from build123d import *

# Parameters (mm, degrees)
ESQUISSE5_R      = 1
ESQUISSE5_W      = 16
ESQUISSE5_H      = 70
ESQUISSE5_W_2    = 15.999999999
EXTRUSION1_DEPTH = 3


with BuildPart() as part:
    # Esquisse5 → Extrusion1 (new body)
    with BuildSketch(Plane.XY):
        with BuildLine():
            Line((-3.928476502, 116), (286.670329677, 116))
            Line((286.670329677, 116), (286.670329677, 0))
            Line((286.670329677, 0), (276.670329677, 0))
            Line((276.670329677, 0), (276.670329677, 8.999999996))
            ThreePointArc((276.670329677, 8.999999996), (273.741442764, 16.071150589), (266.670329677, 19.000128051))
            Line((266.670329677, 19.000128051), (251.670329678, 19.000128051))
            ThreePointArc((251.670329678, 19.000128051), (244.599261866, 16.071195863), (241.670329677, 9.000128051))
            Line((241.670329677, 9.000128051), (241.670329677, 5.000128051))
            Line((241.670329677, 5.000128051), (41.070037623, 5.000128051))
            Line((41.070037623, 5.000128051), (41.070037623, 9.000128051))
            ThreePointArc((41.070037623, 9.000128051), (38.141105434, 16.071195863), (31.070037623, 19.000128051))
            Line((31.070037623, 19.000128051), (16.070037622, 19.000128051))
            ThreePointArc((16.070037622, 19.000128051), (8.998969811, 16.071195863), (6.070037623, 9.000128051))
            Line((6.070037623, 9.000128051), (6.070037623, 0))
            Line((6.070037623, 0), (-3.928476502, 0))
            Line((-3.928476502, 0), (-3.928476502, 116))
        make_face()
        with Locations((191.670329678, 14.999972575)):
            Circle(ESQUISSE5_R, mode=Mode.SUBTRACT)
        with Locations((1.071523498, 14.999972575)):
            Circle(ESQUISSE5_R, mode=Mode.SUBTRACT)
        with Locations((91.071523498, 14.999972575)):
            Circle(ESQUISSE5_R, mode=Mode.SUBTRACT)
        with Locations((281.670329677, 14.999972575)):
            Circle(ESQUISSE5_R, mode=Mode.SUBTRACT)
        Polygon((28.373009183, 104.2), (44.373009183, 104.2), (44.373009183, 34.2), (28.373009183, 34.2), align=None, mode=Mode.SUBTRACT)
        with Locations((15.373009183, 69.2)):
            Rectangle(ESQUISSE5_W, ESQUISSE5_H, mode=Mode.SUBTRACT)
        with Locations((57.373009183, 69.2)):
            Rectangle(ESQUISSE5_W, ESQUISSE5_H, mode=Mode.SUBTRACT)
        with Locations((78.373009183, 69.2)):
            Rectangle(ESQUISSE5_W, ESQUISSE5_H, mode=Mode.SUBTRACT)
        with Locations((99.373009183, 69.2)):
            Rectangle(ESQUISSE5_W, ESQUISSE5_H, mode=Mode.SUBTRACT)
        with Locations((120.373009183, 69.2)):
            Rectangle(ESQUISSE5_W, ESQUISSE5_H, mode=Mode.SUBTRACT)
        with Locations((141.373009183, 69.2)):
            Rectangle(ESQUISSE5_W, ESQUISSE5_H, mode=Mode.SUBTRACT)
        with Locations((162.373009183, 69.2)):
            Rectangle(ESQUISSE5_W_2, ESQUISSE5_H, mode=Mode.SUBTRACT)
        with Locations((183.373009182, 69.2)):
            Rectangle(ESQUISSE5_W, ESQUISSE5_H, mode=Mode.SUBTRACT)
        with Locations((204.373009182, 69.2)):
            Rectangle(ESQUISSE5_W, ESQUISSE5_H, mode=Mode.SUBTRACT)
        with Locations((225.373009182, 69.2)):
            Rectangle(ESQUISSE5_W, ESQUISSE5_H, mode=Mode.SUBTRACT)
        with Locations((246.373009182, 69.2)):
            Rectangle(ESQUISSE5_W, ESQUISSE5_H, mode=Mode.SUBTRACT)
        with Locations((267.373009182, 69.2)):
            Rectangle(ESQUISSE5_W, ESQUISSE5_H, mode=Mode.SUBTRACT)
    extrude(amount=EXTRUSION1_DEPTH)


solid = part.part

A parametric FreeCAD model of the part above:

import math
import FreeCAD as App
import Part
import Sketcher

doc = App.newDocument("Part")
params = doc.addObject("Spreadsheet::Sheet", "Params")
for row, (alias, value) in enumerate([
    ("sketch1_diameter", "2 mm"),
    ("sketch1_radius", "10 mm"),
    ("sketch1_width", "15 mm"),
    ("sketch1_width2", "10 mm"),
    ("sketch1_width3", "16 mm"),
    ("pad1_length", "3 mm"),
], start=1):
    params.set(f"A{row}", alias)
    params.set(f"B{row}", "=" + value)
    params.setAlias(f"B{row}", alias)

body = doc.addObject("PartDesign::Body", "Body")

# Sketch on XY plane
sketch1 = doc.addObject("Sketcher::SketchObject", "Sketch")
body.addObject(sketch1)
sketch1.AttachmentSupport = (doc.XY_Plane, [""])
sketch1.MapMode = "FlatFace"
sketch1.addGeometry([
    Part.LineSegment(App.Vector(286.7, 116, 0), App.Vector(-3.9, 116, 0)),  # 0
    Part.LineSegment(App.Vector(-3.9, 116, 0), App.Vector(-3.9, 0, 0)),  # 1
    Part.LineSegment(App.Vector(-3.9, 0, 0), App.Vector(6.1, 0, 0)),  # 2
    Part.LineSegment(App.Vector(6.1, 0, 0), App.Vector(6.1, 9, 0)),  # 3
    Part.ArcOfCircle(Part.Circle(App.Vector(16.1, 9, 0), App.Vector(0, 0, 1), 10), math.radians(90), math.radians(180)),  # 4
    Part.LineSegment(App.Vector(16.1, 19, 0), App.Vector(31.1, 19, 0)),  # 5
    Part.ArcOfCircle(Part.Circle(App.Vector(31.1, 9, 0), App.Vector(0, 0, 1), 10), math.radians(0), math.radians(90)),  # 6
    Part.LineSegment(App.Vector(41.1, 9, 0), App.Vector(41.1, 5, 0)),  # 7
    Part.LineSegment(App.Vector(41.1, 5, 0), App.Vector(241.7, 5, 0)),  # 8
    Part.LineSegment(App.Vector(241.7, 5, 0), App.Vector(241.7, 9, 0)),  # 9
    Part.ArcOfCircle(Part.Circle(App.Vector(251.7, 9, 0), App.Vector(0, 0, 1), 10), math.radians(90), math.radians(180)),  # 10
    Part.LineSegment(App.Vector(251.7, 19, 0), App.Vector(266.7, 19, 0)),  # 11
    Part.ArcOfCircle(Part.Circle(App.Vector(266.7, 9, 0), App.Vector(0, 0, 1), 10), math.radians(0), math.radians(90)),  # 12
    Part.LineSegment(App.Vector(276.7, 9, 0), App.Vector(276.7, 0, 0)),  # 13
    Part.LineSegment(App.Vector(276.7, 0, 0), App.Vector(286.7, 0, 0)),  # 14
    Part.LineSegment(App.Vector(286.7, 0, 0), App.Vector(286.7, 116, 0)),  # 15
    Part.Circle(App.Vector(281.7, 15, 0), App.Vector(0, 0, 1), 1),  # 16
    Part.Circle(App.Vector(191.7, 15, 0), App.Vector(0, 0, 1), 1),  # 17
    Part.Circle(App.Vector(91.1, 15, 0), App.Vector(0, 0, 1), 1),  # 18
    Part.Circle(App.Vector(1.1, 15, 0), App.Vector(0, 0, 1), 1),  # 19
    Part.LineSegment(App.Vector(259.4, 34.2, 0), App.Vector(259.4, 104.2, 0)),  # 20
    Part.LineSegment(App.Vector(259.4, 104.2, 0), App.Vector(275.4, 104.2, 0)),  # 21
    Part.LineSegment(App.Vector(275.4, 104.2, 0), App.Vector(275.4, 34.2, 0)),  # 22
    Part.LineSegment(App.Vector(275.4, 34.2, 0), App.Vector(259.4, 34.2, 0)),  # 23
    Part.LineSegment(App.Vector(238.4, 34.2, 0), App.Vector(238.4, 104.2, 0)),  # 24
    Part.LineSegment(App.Vector(238.4, 104.2, 0), App.Vector(254.4, 104.2, 0)),  # 25
    Part.LineSegment(App.Vector(254.4, 104.2, 0), App.Vector(254.4, 34.2, 0)),  # 26
    Part.LineSegment(App.Vector(254.4, 34.2, 0), App.Vector(238.4, 34.2, 0)),  # 27
    Part.LineSegment(App.Vector(217.4, 34.2, 0), App.Vector(217.4, 104.2, 0)),  # 28
    Part.LineSegment(App.Vector(217.4, 104.2, 0), App.Vector(233.4, 104.2, 0)),  # 29
    Part.LineSegment(App.Vector(233.4, 104.2, 0), App.Vector(233.4, 34.2, 0)),  # 30
    Part.LineSegment(App.Vector(233.4, 34.2, 0), App.Vector(217.4, 34.2, 0)),  # 31
    Part.LineSegment(App.Vector(196.4, 34.2, 0), App.Vector(196.4, 104.2, 0)),  # 32
    Part.LineSegment(App.Vector(196.4, 104.2, 0), App.Vector(212.4, 104.2, 0)),  # 33
    Part.LineSegment(App.Vector(212.4, 104.2, 0), App.Vector(212.4, 34.2, 0)),  # 34
    Part.LineSegment(App.Vector(212.4, 34.2, 0), App.Vector(196.4, 34.2, 0)),  # 35
    Part.LineSegment(App.Vector(175.4, 34.2, 0), App.Vector(175.4, 104.2, 0)),  # 36
    Part.LineSegment(App.Vector(175.4, 104.2, 0), App.Vector(191.4, 104.2, 0)),  # 37
    Part.LineSegment(App.Vector(191.4, 104.2, 0), App.Vector(191.4, 34.2, 0)),  # 38
    Part.LineSegment(App.Vector(191.4, 34.2, 0), App.Vector(175.4, 34.2, 0)),  # 39
    Part.LineSegment(App.Vector(154.4, 34.2, 0), App.Vector(154.4, 104.2, 0)),  # 40
    Part.LineSegment(App.Vector(154.4, 104.2, 0), App.Vector(170.4, 104.2, 0)),  # 41
    Part.LineSegment(App.Vector(170.4, 104.2, 0), App.Vector(170.4, 34.2, 0)),  # 42
    Part.LineSegment(App.Vector(170.4, 34.2, 0), App.Vector(154.4, 34.2, 0)),  # 43
    Part.LineSegment(App.Vector(133.4, 34.2, 0), App.Vector(133.4, 104.2, 0)),  # 44
    Part.LineSegment(App.Vector(133.4, 104.2, 0), App.Vector(149.4, 104.2, 0)),  # 45
    Part.LineSegment(App.Vector(149.4, 104.2, 0), App.Vector(149.4, 34.2, 0)),  # 46
    Part.LineSegment(App.Vector(149.4, 34.2, 0), App.Vector(133.4, 34.2, 0)),  # 47
    Part.LineSegment(App.Vector(112.4, 34.2, 0), App.Vector(112.4, 104.2, 0)),  # 48
    Part.LineSegment(App.Vector(112.4, 104.2, 0), App.Vector(128.4, 104.2, 0)),  # 49
    Part.LineSegment(App.Vector(128.4, 104.2, 0), App.Vector(128.4, 34.2, 0)),  # 50
    Part.LineSegment(App.Vector(128.4, 34.2, 0), App.Vector(112.4, 34.2, 0)),  # 51
    Part.LineSegment(App.Vector(91.4, 34.2, 0), App.Vector(91.4, 104.2, 0)),  # 52
    Part.LineSegment(App.Vector(91.4, 104.2, 0), App.Vector(107.4, 104.2, 0)),  # 53
    Part.LineSegment(App.Vector(107.4, 104.2, 0), App.Vector(107.4, 34.2, 0)),  # 54
    Part.LineSegment(App.Vector(107.4, 34.2, 0), App.Vector(91.4, 34.2, 0)),  # 55
    Part.LineSegment(App.Vector(70.4, 34.2, 0), App.Vector(70.4, 104.2, 0)),  # 56
    Part.LineSegment(App.Vector(70.4, 104.2, 0), App.Vector(86.4, 104.2, 0)),  # 57
    Part.LineSegment(App.Vector(86.4, 104.2, 0), App.Vector(86.4, 34.2, 0)),  # 58
    Part.LineSegment(App.Vector(86.4, 34.2, 0), App.Vector(70.4, 34.2, 0)),  # 59
    Part.LineSegment(App.Vector(49.4, 34.2, 0), App.Vector(49.4, 104.2, 0)),  # 60
    Part.LineSegment(App.Vector(49.4, 104.2, 0), App.Vector(65.4, 104.2, 0)),  # 61
    Part.LineSegment(App.Vector(65.4, 104.2, 0), App.Vector(65.4, 34.2, 0)),  # 62
    Part.LineSegment(App.Vector(65.4, 34.2, 0), App.Vector(49.4, 34.2, 0)),  # 63
    Part.LineSegment(App.Vector(28.4, 104.2, 0), App.Vector(44.4, 104.2, 0)),  # 64
    Part.LineSegment(App.Vector(44.4, 104.2, 0), App.Vector(44.4, 34.2, 0)),  # 65
    Part.LineSegment(App.Vector(44.4, 34.2, 0), App.Vector(28.4, 34.2, 0)),  # 66
    Part.LineSegment(App.Vector(28.4, 34.2, 0), App.Vector(28.4, 104.2, 0)),  # 67
    Part.LineSegment(App.Vector(7.4, 34.2, 0), App.Vector(7.4, 104.2, 0)),  # 68
    Part.LineSegment(App.Vector(7.4, 104.2, 0), App.Vector(23.4, 104.2, 0)),  # 69
    Part.LineSegment(App.Vector(23.4, 104.2, 0), App.Vector(23.4, 34.2, 0)),  # 70
    Part.LineSegment(App.Vector(23.4, 34.2, 0), App.Vector(7.4, 34.2, 0)),  # 71
], False)
sketch1.addConstraint([
    Sketcher.Constraint("Coincident", 0, 2, 1, 1),
    Sketcher.Constraint("Coincident", 1, 2, 2, 1),
    Sketcher.Constraint("Coincident", 2, 2, 3, 1),
    Sketcher.Constraint("Tangent", 3, 2, 4, 2),
    Sketcher.Constraint("Tangent", 4, 1, 5, 1),
    Sketcher.Constraint("Tangent", 5, 2, 6, 2),
    Sketcher.Constraint("Tangent", 6, 1, 7, 1),
    Sketcher.Constraint("Coincident", 7, 2, 8, 1),
    Sketcher.Constraint("Coincident", 8, 2, 9, 1),
    Sketcher.Constraint("Tangent", 9, 2, 10, 2),
    Sketcher.Constraint("Tangent", 10, 1, 11, 1),
    Sketcher.Constraint("Tangent", 11, 2, 12, 2),
    Sketcher.Constraint("Coincident", 12, 1, 13, 1),
    Sketcher.Constraint("Coincident", 13, 2, 14, 1),
    Sketcher.Constraint("Coincident", 14, 2, 15, 1),
    Sketcher.Constraint("Coincident", 15, 2, 0, 1),
    Sketcher.Constraint("Coincident", 20, 2, 21, 1),
    Sketcher.Constraint("Coincident", 21, 2, 22, 1),
    Sketcher.Constraint("Coincident", 22, 2, 23, 1),
    Sketcher.Constraint("Coincident", 23, 2, 20, 1),
    Sketcher.Constraint("Coincident", 24, 2, 25, 1),
    Sketcher.Constraint("Coincident", 25, 2, 26, 1),
    Sketcher.Constraint("Coincident", 26, 2, 27, 1),
    Sketcher.Constraint("Coincident", 27, 2, 24, 1),
    Sketcher.Constraint("Coincident", 28, 2, 29, 1),
    Sketcher.Constraint("Coincident", 29, 2, 30, 1),
    Sketcher.Constraint("Coincident", 30, 2, 31, 1),
    Sketcher.Constraint("Coincident", 31, 2, 28, 1),
    Sketcher.Constraint("Coincident", 32, 2, 33, 1),
    Sketcher.Constraint("Coincident", 33, 2, 34, 1),
    Sketcher.Constraint("Coincident", 34, 2, 35, 1),
    Sketcher.Constraint("Coincident", 35, 2, 32, 1),
    Sketcher.Constraint("Coincident", 36, 2, 37, 1),
    Sketcher.Constraint("Coincident", 37, 2, 38, 1),
    Sketcher.Constraint("Coincident", 38, 2, 39, 1),
    Sketcher.Constraint("Coincident", 39, 2, 36, 1),
    Sketcher.Constraint("Coincident", 40, 2, 41, 1),
    Sketcher.Constraint("Coincident", 41, 2, 42, 1),
    Sketcher.Constraint("Coincident", 42, 2, 43, 1),
    Sketcher.Constraint("Coincident", 43, 2, 40, 1),
    Sketcher.Constraint("Coincident", 44, 2, 45, 1),
    Sketcher.Constraint("Coincident", 45, 2, 46, 1),
    Sketcher.Constraint("Coincident", 46, 2, 47, 1),
    Sketcher.Constraint("Coincident", 47, 2, 44, 1),
    Sketcher.Constraint("Coincident", 48, 2, 49, 1),
    Sketcher.Constraint("Coincident", 49, 2, 50, 1),
    Sketcher.Constraint("Coincident", 50, 2, 51, 1),
    Sketcher.Constraint("Coincident", 51, 2, 48, 1),
    Sketcher.Constraint("Coincident", 52, 2, 53, 1),
    Sketcher.Constraint("Coincident", 53, 2, 54, 1),
    Sketcher.Constraint("Coincident", 54, 2, 55, 1),
    Sketcher.Constraint("Coincident", 55, 2, 52, 1),
    Sketcher.Constraint("Coincident", 56, 2, 57, 1),
    Sketcher.Constraint("Coincident", 57, 2, 58, 1),
    Sketcher.Constraint("Coincident", 58, 2, 59, 1),
    Sketcher.Constraint("Coincident", 59, 2, 56, 1),
    Sketcher.Constraint("Coincident", 60, 2, 61, 1),
    Sketcher.Constraint("Coincident", 61, 2, 62, 1),
    Sketcher.Constraint("Coincident", 62, 2, 63, 1),
    Sketcher.Constraint("Coincident", 63, 2, 60, 1),
    Sketcher.Constraint("Coincident", 64, 2, 65, 1),
    Sketcher.Constraint("Coincident", 65, 2, 66, 1),
    Sketcher.Constraint("Coincident", 66, 2, 67, 1),
    Sketcher.Constraint("Coincident", 67, 2, 64, 1),
    Sketcher.Constraint("Coincident", 68, 2, 69, 1),
    Sketcher.Constraint("Coincident", 69, 2, 70, 1),
    Sketcher.Constraint("Coincident", 70, 2, 71, 1),
    Sketcher.Constraint("Coincident", 71, 2, 68, 1),
    Sketcher.Constraint("Horizontal", 0),
    Sketcher.Constraint("Vertical", 1),
    Sketcher.Constraint("Horizontal", 2),
    Sketcher.Constraint("Vertical", 3),
    Sketcher.Constraint("Horizontal", 5),
    Sketcher.Constraint("Vertical", 7),
    Sketcher.Constraint("Horizontal", 8),
    Sketcher.Constraint("Vertical", 9),
    Sketcher.Constraint("Horizontal", 11),
    Sketcher.Constraint("Vertical", 13),
    Sketcher.Constraint("Horizontal", 14),
    Sketcher.Constraint("Vertical", 15),
    Sketcher.Constraint("Vertical", 20),
    Sketcher.Constraint("Horizontal", 21),
    Sketcher.Constraint("Vertical", 22),
    Sketcher.Constraint("Horizontal", 23),
    Sketcher.Constraint("Vertical", 24),
    Sketcher.Constraint("Horizontal", 25),
    Sketcher.Constraint("Vertical", 26),
    Sketcher.Constraint("Horizontal", 27),
    Sketcher.Constraint("Vertical", 28),
    Sketcher.Constraint("Horizontal", 29),
    Sketcher.Constraint("Vertical", 30),
    Sketcher.Constraint("Horizontal", 31),
    Sketcher.Constraint("Vertical", 32),
    Sketcher.Constraint("Horizontal", 33),
    Sketcher.Constraint("Vertical", 34),
    Sketcher.Constraint("Horizontal", 35),
    Sketcher.Constraint("Vertical", 36),
    Sketcher.Constraint("Horizontal", 37),
    Sketcher.Constraint("Vertical", 38),
    Sketcher.Constraint("Horizontal", 39),
    Sketcher.Constraint("Vertical", 40),
    Sketcher.Constraint("Horizontal", 41),
    Sketcher.Constraint("Vertical", 42),
    Sketcher.Constraint("Horizontal", 43),
    Sketcher.Constraint("Vertical", 44),
    Sketcher.Constraint("Horizontal", 45),
    Sketcher.Constraint("Vertical", 46),
    Sketcher.Constraint("Horizontal", 47),
    Sketcher.Constraint("Vertical", 48),
    Sketcher.Constraint("Horizontal", 49),
    Sketcher.Constraint("Vertical", 50),
    Sketcher.Constraint("Horizontal", 51),
    Sketcher.Constraint("Vertical", 52),
    Sketcher.Constraint("Horizontal", 53),
    Sketcher.Constraint("Vertical", 54),
    Sketcher.Constraint("Horizontal", 55),
    Sketcher.Constraint("Vertical", 56),
    Sketcher.Constraint("Horizontal", 57),
    Sketcher.Constraint("Vertical", 58),
    Sketcher.Constraint("Horizontal", 59),
    Sketcher.Constraint("Vertical", 60),
    Sketcher.Constraint("Horizontal", 61),
    Sketcher.Constraint("Vertical", 62),
    Sketcher.Constraint("Horizontal", 63),
    Sketcher.Constraint("Horizontal", 64),
    Sketcher.Constraint("Vertical", 65),
    Sketcher.Constraint("Horizontal", 66),
    Sketcher.Constraint("Vertical", 67),
    Sketcher.Constraint("Vertical", 68),
    Sketcher.Constraint("Horizontal", 69),
    Sketcher.Constraint("Vertical", 70),
    Sketcher.Constraint("Horizontal", 71),
    Sketcher.Constraint("Equal", 4, 6),
    Sketcher.Constraint("Equal", 6, 10),
    Sketcher.Constraint("Equal", 10, 12),
    Sketcher.Constraint("Equal", 16, 17),
    Sketcher.Constraint("Equal", 17, 18),
    Sketcher.Constraint("Equal", 18, 19),
    Sketcher.Constraint("PointOnObject", 1, 2, -1),
    Sketcher.Constraint("PointOnObject", 13, 2, -1),
    Sketcher.Constraint("Horizontal", 6, 3, 10, 3),
    Sketcher.Constraint("Horizontal", 16, 3, 17, 3),
    Sketcher.Constraint("Horizontal", 17, 3, 18, 3),
    Sketcher.Constraint("Horizontal", 18, 3, 19, 3),
    Sketcher.Constraint("Horizontal", 21, 2, 24, 2),
    Sketcher.Constraint("Horizontal", 23, 2, 26, 2),
    Sketcher.Constraint("Horizontal", 25, 2, 28, 2),
    Sketcher.Constraint("Horizontal", 27, 2, 30, 2),
    Sketcher.Constraint("Horizontal", 29, 2, 32, 2),
    Sketcher.Constraint("Horizontal", 31, 2, 34, 2),
    Sketcher.Constraint("Horizontal", 33, 2, 36, 2),
    Sketcher.Constraint("Horizontal", 35, 2, 38, 2),
    Sketcher.Constraint("Horizontal", 37, 2, 40, 2),
    Sketcher.Constraint("Horizontal", 39, 2, 42, 2),
    Sketcher.Constraint("Horizontal", 41, 2, 44, 2),
    Sketcher.Constraint("Horizontal", 43, 2, 46, 2),
    Sketcher.Constraint("Horizontal", 45, 2, 48, 2),
    Sketcher.Constraint("Horizontal", 47, 2, 50, 2),
    Sketcher.Constraint("Horizontal", 49, 2, 52, 2),
    Sketcher.Constraint("Horizontal", 51, 2, 54, 2),
    Sketcher.Constraint("Horizontal", 53, 2, 56, 2),
    Sketcher.Constraint("Horizontal", 55, 2, 58, 2),
    Sketcher.Constraint("Horizontal", 57, 2, 60, 2),
    Sketcher.Constraint("Horizontal", 59, 2, 62, 2),
    Sketcher.Constraint("Horizontal", 61, 2, 64, 2),
    Sketcher.Constraint("Horizontal", 63, 2, 65, 2),
    Sketcher.Constraint("Horizontal", 67, 2, 68, 2),
    Sketcher.Constraint("Horizontal", 66, 2, 70, 2),
    Sketcher.Constraint("Equal", 5, 11),
    Sketcher.Constraint("Equal", 23, 25),
    Sketcher.Constraint("Equal", 27, 29),
    Sketcher.Constraint("Equal", 31, 33),
    Sketcher.Constraint("Equal", 35, 37),
    Sketcher.Constraint("Equal", 39, 41),
    Sketcher.Constraint("Equal", 43, 45),
    Sketcher.Constraint("Equal", 47, 49),
    Sketcher.Constraint("Equal", 51, 53),
    Sketcher.Constraint("Equal", 55, 57),
    Sketcher.Constraint("Equal", 59, 61),
    Sketcher.Constraint("Equal", 63, 64),
    Sketcher.Constraint("Equal", 66, 69),
    Sketcher.Constraint("Diameter", 16, 2.0),
    Sketcher.Constraint("Radius", 4, 10.0),
    Sketcher.Constraint("DistanceX", 5, 1, 5, 2, 15.0),
    Sketcher.Constraint("DistanceX", 14, 1, 14, 2, 10.0),
    Sketcher.Constraint("DistanceX", 21, 1, 21, 2, 16.0),
    Sketcher.Constraint("DistanceY", 1, 2, 1, 1, 116.0),
    Sketcher.Constraint("DistanceY", 7, 2, 7, 1, 4.0),
    Sketcher.Constraint("DistanceY", 13, 2, 13, 1, 9.0),
    Sketcher.Constraint("DistanceY", 20, 1, 20, 2, 70.0),
    Sketcher.Constraint("DistanceY", -1, 1, 20, 2, 104.2),
    Sketcher.Constraint("DistanceY", 3, 1, 3, 2, 9.000128),
    Sketcher.Constraint("DistanceX", 0, 2, 0, 1, 290.598806),
    Sketcher.Constraint("DistanceX", 2, 1, 2, 2, 9.998514),
    Sketcher.Constraint("DistanceX", -1, 1, 10, 3, 251.67033),
    Sketcher.Constraint("DistanceX", -1, 1, 16, 3, 281.67033),
    Sketcher.Constraint("DistanceX", -1, 1, 17, 3, 191.67033),
    Sketcher.Constraint("DistanceX", -1, 1, 20, 2, 259.373009),
    Sketcher.Constraint("DistanceX", -1, 1, 24, 2, 238.373009),
    Sketcher.Constraint("DistanceX", -1, 1, 28, 2, 217.373009),
    Sketcher.Constraint("DistanceX", -1, 1, 32, 2, 196.373009),
    Sketcher.Constraint("DistanceX", -1, 1, 36, 2, 175.373009),
    Sketcher.Constraint("DistanceX", -1, 1, 40, 2, 154.373009),
    Sketcher.Constraint("DistanceX", -1, 1, 44, 2, 133.373009),
    Sketcher.Constraint("DistanceX", -1, 1, 48, 2, 112.373009),
    Sketcher.Constraint("DistanceX", -1, 1, 52, 2, 91.373009),
    Sketcher.Constraint("DistanceX", -1, 1, 56, 2, 70.373009),
    Sketcher.Constraint("DistanceX", -1, 1, 60, 2, 49.373009),
    Sketcher.Constraint("DistanceX", -1, 1, 64, 2, 44.373009),
    Sketcher.Constraint("DistanceX", -1, 1, 68, 2, 7.373009),
    Sketcher.Constraint("DistanceY", -1, 1, 16, 3, 14.999973),
    Sketcher.Constraint("DistanceX", -1, 1, 18, 3, 91.071523),
    Sketcher.Constraint("DistanceX", -1, 1, 19, 3, 1.071523),
])
sketch1.setExpression("Constraints[181]", "Params.sketch1_diameter")
sketch1.setExpression("Constraints[182]", "Params.sketch1_radius")
sketch1.setExpression("Constraints[183]", "Params.sketch1_width")
sketch1.setExpression("Constraints[184]", "Params.sketch1_width2")
sketch1.setExpression("Constraints[185]", "Params.sketch1_width3")
pad1 = doc.addObject("PartDesign::Pad", "Pad")
body.addObject(pad1)
pad1.Profile = sketch1
pad1.setExpression("Length", "Params.pad1_length")

doc.recompute()
